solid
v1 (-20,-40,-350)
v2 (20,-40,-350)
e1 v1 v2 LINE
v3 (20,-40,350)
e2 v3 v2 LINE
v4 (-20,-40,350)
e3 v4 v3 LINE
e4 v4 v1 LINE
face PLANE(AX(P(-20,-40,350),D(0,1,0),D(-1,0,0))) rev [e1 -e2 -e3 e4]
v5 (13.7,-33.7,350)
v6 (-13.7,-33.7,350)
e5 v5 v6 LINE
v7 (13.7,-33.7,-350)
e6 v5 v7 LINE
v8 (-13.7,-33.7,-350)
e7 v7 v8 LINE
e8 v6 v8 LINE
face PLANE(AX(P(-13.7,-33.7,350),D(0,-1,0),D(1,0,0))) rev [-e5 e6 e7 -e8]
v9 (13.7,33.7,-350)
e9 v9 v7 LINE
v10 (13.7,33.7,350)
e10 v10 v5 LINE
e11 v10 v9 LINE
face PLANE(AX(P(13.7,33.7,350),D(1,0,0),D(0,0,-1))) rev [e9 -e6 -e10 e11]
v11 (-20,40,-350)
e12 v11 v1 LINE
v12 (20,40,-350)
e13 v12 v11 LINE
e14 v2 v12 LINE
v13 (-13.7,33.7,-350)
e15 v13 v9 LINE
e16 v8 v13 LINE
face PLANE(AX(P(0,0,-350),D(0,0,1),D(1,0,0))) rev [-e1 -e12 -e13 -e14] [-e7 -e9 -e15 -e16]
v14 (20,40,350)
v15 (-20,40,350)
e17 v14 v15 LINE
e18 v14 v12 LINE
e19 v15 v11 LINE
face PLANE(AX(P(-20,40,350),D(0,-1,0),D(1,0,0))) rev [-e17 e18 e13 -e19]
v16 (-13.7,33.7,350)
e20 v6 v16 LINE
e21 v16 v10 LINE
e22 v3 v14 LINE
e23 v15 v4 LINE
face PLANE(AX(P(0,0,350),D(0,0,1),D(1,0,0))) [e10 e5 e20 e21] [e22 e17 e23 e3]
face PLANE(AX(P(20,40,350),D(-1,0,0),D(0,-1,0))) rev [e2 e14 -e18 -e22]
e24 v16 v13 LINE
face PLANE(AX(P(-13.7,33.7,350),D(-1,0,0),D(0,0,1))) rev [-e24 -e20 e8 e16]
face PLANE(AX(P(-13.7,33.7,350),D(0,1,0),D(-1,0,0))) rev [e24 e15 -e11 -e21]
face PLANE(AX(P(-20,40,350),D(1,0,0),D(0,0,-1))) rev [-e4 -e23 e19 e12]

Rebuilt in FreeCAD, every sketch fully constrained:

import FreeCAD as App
import Part
import Sketcher

V = App.Vector
Q = App.Units.Quantity


def add_polygon(sketch, points):
    """Adds a closed chain of lines whose ends are joined by coincident constraints."""
    first, n = sketch.GeometryCount, len(points)
    for a, b in zip(points, points[1:] + points[:1]):
        sketch.addGeometry(Part.LineSegment(App.Vector(*a, 0), App.Vector(*b, 0)), False)
    for i in range(n):
        sketch.addConstraint(Sketcher.Constraint("Coincident", first + i, 2, first + (i + 1) % n, 1))

doc = App.newDocument("Part")
body = doc.addObject("PartDesign::Body", "Body")

sketch1 = body.newObject("Sketcher::SketchObject", "Sketch")
sketch1.AttachmentSupport = (doc.getObject("XY_Plane"), [""])
sketch1.MapMode = "FlatFace"
add_polygon(sketch1, [(-20, 40), (-20, -40), (20, -40), (20, 40)])
add_polygon(sketch1, [(14, -34), (-14, -34), (-14, 34), (14, 34)])
sketch1.addConstraint([
    Sketcher.Constraint("Vertical", 0),
    Sketcher.Constraint("Horizontal", 1),
    Sketcher.Constraint("Vertical", 2),
    Sketcher.Constraint("Horizontal", 3),
    Sketcher.Constraint("Horizontal", 4),
    Sketcher.Constraint("Vertical", 5),
    Sketcher.Constraint("Horizontal", 6),
    Sketcher.Constraint("Vertical", 7),
    Sketcher.Constraint("Symmetric", 0, 2, 2, 2, -1, 1),
    Sketcher.Constraint("Symmetric", 4, 2, 6, 2, -1, 1),
    Sketcher.Constraint("DistanceX", 1, 1, 1, 2, Q("40 mm")),
    Sketcher.Constraint("DistanceY", 0, 2, 0, 1, Q("80 mm")),
    Sketcher.Constraint("DistanceX", 4, 2, 4, 1, Q("27.4 mm")),
    Sketcher.Constraint("DistanceY", 5, 1, 5, 2, Q("67.4 mm")),
])

sketch2 = body.newObject("Sketcher::SketchObject", "Sketch001")
sketch2.AttachmentSupport = (doc.getObject("XZ_Plane"), [""])
sketch2.MapMode = "FlatFace"
sketch2.addGeometry(Part.BSplineCurve([V(0, -350, 0), V(0, 350, 0)], [2, 2], [0, 1], False, 1, [1, 1], False), False)
sketch2.addConstraint(Sketcher.Constraint("Block", 0))
doc.recompute()

additivepipe = body.newObject("PartDesign::AdditivePipe", "AdditivePipe")
additivepipe.Profile = sketch1
additivepipe.Spine = (sketch2, ["Edge1"])

doc.recompute()
